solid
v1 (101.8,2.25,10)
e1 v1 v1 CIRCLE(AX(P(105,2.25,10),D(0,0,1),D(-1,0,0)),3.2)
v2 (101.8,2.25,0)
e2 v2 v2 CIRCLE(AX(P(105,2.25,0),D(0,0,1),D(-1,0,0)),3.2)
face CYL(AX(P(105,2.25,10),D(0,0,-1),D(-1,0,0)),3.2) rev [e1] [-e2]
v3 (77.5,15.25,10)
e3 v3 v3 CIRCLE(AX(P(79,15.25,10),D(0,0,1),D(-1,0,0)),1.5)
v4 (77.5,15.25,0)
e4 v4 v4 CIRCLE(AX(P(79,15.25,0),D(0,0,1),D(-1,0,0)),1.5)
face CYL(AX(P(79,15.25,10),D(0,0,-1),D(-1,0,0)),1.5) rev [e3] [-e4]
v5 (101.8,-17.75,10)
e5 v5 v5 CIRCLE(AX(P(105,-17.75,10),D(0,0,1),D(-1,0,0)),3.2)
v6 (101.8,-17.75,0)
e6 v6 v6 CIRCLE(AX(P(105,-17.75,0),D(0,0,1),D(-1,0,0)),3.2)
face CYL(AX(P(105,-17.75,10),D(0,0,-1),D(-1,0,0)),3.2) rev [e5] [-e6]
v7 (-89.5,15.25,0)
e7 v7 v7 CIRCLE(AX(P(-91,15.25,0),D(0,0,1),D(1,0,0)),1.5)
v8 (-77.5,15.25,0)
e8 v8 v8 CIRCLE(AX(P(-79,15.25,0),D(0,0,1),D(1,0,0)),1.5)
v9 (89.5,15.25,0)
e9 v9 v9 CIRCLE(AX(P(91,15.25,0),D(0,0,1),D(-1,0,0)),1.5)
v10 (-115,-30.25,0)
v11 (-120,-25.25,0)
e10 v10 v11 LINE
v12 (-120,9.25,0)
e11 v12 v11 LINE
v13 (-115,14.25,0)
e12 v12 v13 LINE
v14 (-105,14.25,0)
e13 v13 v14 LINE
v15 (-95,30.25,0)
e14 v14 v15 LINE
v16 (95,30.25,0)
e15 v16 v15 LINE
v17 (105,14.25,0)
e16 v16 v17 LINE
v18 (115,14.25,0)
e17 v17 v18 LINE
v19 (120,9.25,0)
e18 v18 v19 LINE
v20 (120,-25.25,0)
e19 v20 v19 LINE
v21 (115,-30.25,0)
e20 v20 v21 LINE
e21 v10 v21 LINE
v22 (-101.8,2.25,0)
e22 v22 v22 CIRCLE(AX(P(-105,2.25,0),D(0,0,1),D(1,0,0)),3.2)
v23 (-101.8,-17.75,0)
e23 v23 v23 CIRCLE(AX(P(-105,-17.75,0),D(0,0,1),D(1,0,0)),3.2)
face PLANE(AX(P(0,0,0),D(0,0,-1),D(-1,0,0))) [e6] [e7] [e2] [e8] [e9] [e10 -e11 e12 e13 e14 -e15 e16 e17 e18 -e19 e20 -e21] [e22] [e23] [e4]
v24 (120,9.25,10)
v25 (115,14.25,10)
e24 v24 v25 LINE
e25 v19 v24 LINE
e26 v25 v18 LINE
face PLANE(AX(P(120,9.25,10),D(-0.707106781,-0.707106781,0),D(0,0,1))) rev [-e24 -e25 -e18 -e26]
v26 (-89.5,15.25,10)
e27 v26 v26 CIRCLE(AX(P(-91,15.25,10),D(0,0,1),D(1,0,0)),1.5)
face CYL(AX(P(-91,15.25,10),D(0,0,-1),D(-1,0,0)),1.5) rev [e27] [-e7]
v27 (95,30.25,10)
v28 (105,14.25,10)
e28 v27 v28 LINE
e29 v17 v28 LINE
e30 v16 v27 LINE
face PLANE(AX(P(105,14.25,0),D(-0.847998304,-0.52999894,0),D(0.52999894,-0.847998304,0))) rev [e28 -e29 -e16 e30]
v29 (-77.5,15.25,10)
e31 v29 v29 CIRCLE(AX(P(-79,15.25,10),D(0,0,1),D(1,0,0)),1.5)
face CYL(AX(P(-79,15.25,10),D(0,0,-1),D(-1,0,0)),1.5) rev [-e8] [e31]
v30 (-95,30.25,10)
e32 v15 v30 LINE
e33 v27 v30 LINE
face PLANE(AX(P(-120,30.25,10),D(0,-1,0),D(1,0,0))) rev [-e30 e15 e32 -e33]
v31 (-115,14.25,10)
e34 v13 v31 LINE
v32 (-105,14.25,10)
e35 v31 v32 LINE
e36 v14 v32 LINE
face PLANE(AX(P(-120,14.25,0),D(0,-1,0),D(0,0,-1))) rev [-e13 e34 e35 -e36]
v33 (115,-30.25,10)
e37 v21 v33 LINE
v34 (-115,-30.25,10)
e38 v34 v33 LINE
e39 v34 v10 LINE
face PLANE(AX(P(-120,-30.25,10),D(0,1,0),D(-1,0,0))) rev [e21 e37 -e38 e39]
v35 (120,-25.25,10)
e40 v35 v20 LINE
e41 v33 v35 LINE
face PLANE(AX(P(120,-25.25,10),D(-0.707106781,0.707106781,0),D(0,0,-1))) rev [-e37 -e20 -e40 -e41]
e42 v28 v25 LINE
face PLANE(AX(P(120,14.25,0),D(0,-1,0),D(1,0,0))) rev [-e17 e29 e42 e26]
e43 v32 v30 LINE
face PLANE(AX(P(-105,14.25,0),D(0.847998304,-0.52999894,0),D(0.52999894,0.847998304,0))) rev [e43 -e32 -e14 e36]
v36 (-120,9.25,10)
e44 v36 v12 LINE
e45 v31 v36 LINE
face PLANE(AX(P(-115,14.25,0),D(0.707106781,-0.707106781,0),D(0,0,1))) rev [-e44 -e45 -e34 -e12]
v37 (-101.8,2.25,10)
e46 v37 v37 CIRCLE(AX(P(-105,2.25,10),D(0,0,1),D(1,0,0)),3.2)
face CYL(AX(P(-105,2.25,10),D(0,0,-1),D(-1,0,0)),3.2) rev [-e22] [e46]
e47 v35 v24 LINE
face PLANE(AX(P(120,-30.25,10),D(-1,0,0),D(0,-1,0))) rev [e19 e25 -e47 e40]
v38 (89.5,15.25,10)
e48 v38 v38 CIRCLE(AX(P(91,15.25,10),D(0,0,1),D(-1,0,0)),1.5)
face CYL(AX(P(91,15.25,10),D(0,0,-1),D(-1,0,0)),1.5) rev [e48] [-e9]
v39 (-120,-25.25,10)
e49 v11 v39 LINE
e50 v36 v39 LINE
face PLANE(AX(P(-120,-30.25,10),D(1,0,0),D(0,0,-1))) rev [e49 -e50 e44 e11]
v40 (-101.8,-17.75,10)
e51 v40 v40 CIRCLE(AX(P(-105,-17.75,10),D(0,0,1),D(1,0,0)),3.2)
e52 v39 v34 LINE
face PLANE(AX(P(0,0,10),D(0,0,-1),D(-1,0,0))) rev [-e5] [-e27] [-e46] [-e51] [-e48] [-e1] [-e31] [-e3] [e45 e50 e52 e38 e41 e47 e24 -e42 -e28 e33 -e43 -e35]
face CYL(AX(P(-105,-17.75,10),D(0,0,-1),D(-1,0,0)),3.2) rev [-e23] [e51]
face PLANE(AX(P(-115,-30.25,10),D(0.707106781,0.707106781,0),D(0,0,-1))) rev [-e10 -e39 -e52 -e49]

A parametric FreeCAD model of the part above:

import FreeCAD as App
import Part
import Sketcher


def edges_at(feature, points):
    """Names of the edges that pass closest to the given points."""
    edges = feature.Shape.Edges
    near = lambda p: min(range(len(edges)), key=lambda i: edges[i].distToShape(Part.Vertex(*p))[0])
    return sorted({f"Edge{near(p) + 1}" for p in points})

doc = App.newDocument("Part")
body = doc.addObject("PartDesign::Body", "Body")

sketch1 = doc.addObject("Sketcher::SketchObject", "Sketch")
body.addObject(sketch1)
sketch1.AttachmentSupport = (doc.XY_Plane, [""])
sketch1.MapMode = "FlatFace"
sketch1.addGeometry([
    Part.LineSegment(App.Vector(-120, 30.25, 0), App.Vector(-120, -30.25, 0)),
    Part.LineSegment(App.Vector(-120, -30.25, 0), App.Vector(120, -30.25, 0)),
    Part.LineSegment(App.Vector(120, -30.25, 0), App.Vector(120, 30.25, 0)),
    Part.LineSegment(App.Vector(120, 30.25, 0), App.Vector(-120, 30.25, 0)),
    Part.Circle(App.Vector(-105, -17.75, 0), App.Vector(0, 0, 1), 3.2),
    Part.Circle(App.Vector(105, -17.75, 0), App.Vector(0, 0, 1), 3.2),
    Part.Circle(App.Vector(-105, 2.25, 0), App.Vector(0, 0, 1), 3.2),
    Part.Circle(App.Vector(-91, 15.25, 0), App.Vector(0, 0, 1), 1.5),
    Part.Circle(App.Vector(-79, 15.25, 0), App.Vector(0, 0, 1), 1.5),
    Part.Circle(App.Vector(105, 2.25, 0), App.Vector(0, 0, 1), 3.2),
    Part.Circle(App.Vector(79, 15.25, 0), App.Vector(0, 0, 1), 1.5),
    Part.Circle(App.Vector(91, 15.25, 0), App.Vector(0, 0, 1), 1.5),
], False)
sketch1.addConstraint([
    Sketcher.Constraint("Coincident", 0, 2, 1, 1),
    Sketcher.Constraint("Coincident", 1, 2, 2, 1),
    Sketcher.Constraint("Coincident", 2, 2, 3, 1),
    Sketcher.Constraint("Coincident", 3, 2, 0, 1),
    Sketcher.Constraint("Vertical", 0),
    Sketcher.Constraint("Horizontal", 1),
    Sketcher.Constraint("Vertical", 2),
    Sketcher.Constraint("Horizontal", 3),
    Sketcher.Constraint("Equal", 4, 5),
    Sketcher.Constraint("Equal", 5, 6),
    Sketcher.Constraint("Equal", 7, 8),
    Sketcher.Constraint("Equal", 6, 9),
    Sketcher.Constraint("Equal", 8, 10),
    Sketcher.Constraint("Equal", 10, 11),
    Sketcher.Constraint("Symmetric", 0, 2, 2, 2, -1, 1),
    Sketcher.Constraint("Symmetric", 4, 3, 5, 3, -2),
    Sketcher.Constraint("Symmetric", 6, 3, 9, 3, -2),
    Sketcher.Constraint("Symmetric", 8, 3, 10, 3, -2),
    Sketcher.Constraint("Symmetric", 7, 3, 11, 3, -2),
    Sketcher.Constraint("Horizontal", 7, 3, 8, 3),
    Sketcher.Constraint("Vertical", 4, 3, 6, 3),
    Sketcher.Constraint("Diameter", 7, 3.0),
    Sketcher.Constraint("Diameter", 4, 6.4),
    Sketcher.Constraint("DistanceX", 1, 1, 1, 2, 240.0),
    Sketcher.Constraint("DistanceY", 0, 2, 0, 1, 60.5),
    Sketcher.Constraint("DistanceX", 4, 3, -1, 1, 105.0),
    Sketcher.Constraint("DistanceX", 7, 3, -1, 1, 91.0),
    Sketcher.Constraint("DistanceX", 8, 3, -1, 1, 79.0),
    Sketcher.Constraint("DistanceY", 4, 3, 6, 3, 20.0),
    Sketcher.Constraint("DistanceY", 6, 3, 7, 3, 13.0),
    Sketcher.Constraint("DistanceY", 9, 3, 2, 2, 28.0),
])
pad1 = doc.addObject("PartDesign::Pad", "Pad")
body.addObject(pad1)
pad1.Profile = sketch1
pad1.Length = 10

sketch2 = doc.addObject("Sketcher::SketchObject", "Sketch001")
body.addObject(sketch2)
sketch2.AttachmentSupport = (doc.XY_Plane, [""])
sketch2.MapMode = "FlatFace"
sketch2.AttachmentOffset = App.Placement(App.Vector(0, 0, 10), App.Rotation())
sketch2.addGeometry([
    Part.LineSegment(App.Vector(-120, 14.25, 0), App.Vector(-105, 14.25, 0)),
    Part.LineSegment(App.Vector(-105, 14.25, 0), App.Vector(-95, 30.25, 0)),
    Part.LineSegment(App.Vector(-95, 30.25, 0), App.Vector(-120, 30.25, 0)),
    Part.LineSegment(App.Vector(-120, 30.25, 0), App.Vector(-120, 14.25, 0)),
    Part.LineSegment(App.Vector(120, 14.25, 0), App.Vector(120, 30.25, 0)),
    Part.LineSegment(App.Vector(120, 30.25, 0), App.Vector(95, 30.25, 0)),
    Part.LineSegment(App.Vector(95, 30.25, 0), App.Vector(105, 14.25, 0)),
    Part.LineSegment(App.Vector(105, 14.25, 0), App.Vector(120, 14.25, 0)),
], False)
sketch2.addConstraint([
    Sketcher.Constraint("Coincident", 0, 2, 1, 1),
    Sketcher.Constraint("Coincident", 1, 2, 2, 1),
    Sketcher.Constraint("Coincident", 2, 2, 3, 1),
    Sketcher.Constraint("Coincident", 3, 2, 0, 1),
    Sketcher.Constraint("Coincident", 4, 2, 5, 1),
    Sketcher.Constraint("Coincident", 5, 2, 6, 1),
    Sketcher.Constraint("Coincident", 6, 2, 7, 1),
    Sketcher.Constraint("Coincident", 7, 2, 4, 1),
    Sketcher.Constraint("Horizontal", 0),
    Sketcher.Constraint("Horizontal", 2),
    Sketcher.Constraint("Vertical", 3),
    Sketcher.Constraint("Vertical", 4),
    Sketcher.Constraint("Horizontal", 5),
    Sketcher.Constraint("Horizontal", 7),
    Sketcher.Constraint("Symmetric", 2, 2, 4, 2, -2),
    Sketcher.Constraint("Symmetric", 0, 2, 6, 2, -2),
    Sketcher.Constraint("Equal", 2, 5),
    Sketcher.Constraint("DistanceX", 0, 1, 0, 2, 15.0),
    Sketcher.Constraint("DistanceX", 2, 2, 2, 1, 25.0),
    Sketcher.Constraint("DistanceY", 3, 2, 3, 1, 16.0),
    Sketcher.Constraint("DistanceX", 0, 2, -1, 1, 105.0),
    Sketcher.Constraint("DistanceY", -1, 1, 0, 2, 14.25),
])
pocket1 = doc.addObject("PartDesign::Pocket", "Pocket")
body.addObject(pocket1)
pocket1.Profile = sketch2
pocket1.Type = "ThroughAll"
doc.recompute()

chamfer = doc.addObject("PartDesign::Chamfer", "Chamfer")
body.addObject(chamfer)
chamfer.Base = (pocket1, edges_at(pocket1, [
    (-120, 14.25, 5),
    (120, 14.25, 5),
    (120, -30.25, 5),
    (-120, -30.25, 5),
]))
chamfer.Size = 5

doc.recompute()
